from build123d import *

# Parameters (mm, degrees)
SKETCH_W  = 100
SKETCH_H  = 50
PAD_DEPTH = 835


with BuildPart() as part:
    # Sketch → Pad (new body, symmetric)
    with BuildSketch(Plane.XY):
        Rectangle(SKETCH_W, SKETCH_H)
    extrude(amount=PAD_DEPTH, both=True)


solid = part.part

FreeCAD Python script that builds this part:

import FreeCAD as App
import Part
import Sketcher

V = App.Vector


def add_polygon(sketch, points):
    """Adds a closed chain of lines whose ends are joined by coincident constraints."""
    first, n = sketch.GeometryCount, len(points)
    for a, b in zip(points, points[1:] + points[:1]):
        sketch.addGeometry(Part.LineSegment(App.Vector(*a, 0), App.Vector(*b, 0)), False)
    for i in range(n):
        sketch.addConstraint(Sketcher.Constraint("Coincident", first + i, 2, first + (i + 1) % n, 1))

doc = App.newDocument("Part")
body = doc.addObject("PartDesign::Body", "Body")

# Sketch on XY plane
sketch1 = body.newObject("Sketcher::SketchObject", "Sketch")
sketch1.AttachmentSupport = (doc.getObject("XY_Plane"), [""])
sketch1.MapMode = "FlatFace"
add_polygon(sketch1, [(-50, 25), (-50, -25), (50, -25), (50, 25)])  # lines 0-3
sketch1.addConstraint(Sketcher.Constraint("Vertical", 0))
sketch1.addConstraint(Sketcher.Constraint("Horizontal", 1))
sketch1.addConstraint(Sketcher.Constraint("Vertical", 2))
sketch1.addConstraint(Sketcher.Constraint("Horizontal", 3))
sketch1.addConstraint(Sketcher.Constraint("Symmetric", 0, 2, 2, 2, -1, 1))
sketch1.addConstraint(Sketcher.Constraint("DistanceX", 1, 1, 1, 2, 100.0))
sketch1.addConstraint(Sketcher.Constraint("DistanceY", 0, 2, 0, 1, 50.0))
pad1 = body.newObject("PartDesign::Pad", "Pad")
pad1.Profile = sketch1
pad1.Length = 1670
pad1.Midplane = True

doc.recompute()
